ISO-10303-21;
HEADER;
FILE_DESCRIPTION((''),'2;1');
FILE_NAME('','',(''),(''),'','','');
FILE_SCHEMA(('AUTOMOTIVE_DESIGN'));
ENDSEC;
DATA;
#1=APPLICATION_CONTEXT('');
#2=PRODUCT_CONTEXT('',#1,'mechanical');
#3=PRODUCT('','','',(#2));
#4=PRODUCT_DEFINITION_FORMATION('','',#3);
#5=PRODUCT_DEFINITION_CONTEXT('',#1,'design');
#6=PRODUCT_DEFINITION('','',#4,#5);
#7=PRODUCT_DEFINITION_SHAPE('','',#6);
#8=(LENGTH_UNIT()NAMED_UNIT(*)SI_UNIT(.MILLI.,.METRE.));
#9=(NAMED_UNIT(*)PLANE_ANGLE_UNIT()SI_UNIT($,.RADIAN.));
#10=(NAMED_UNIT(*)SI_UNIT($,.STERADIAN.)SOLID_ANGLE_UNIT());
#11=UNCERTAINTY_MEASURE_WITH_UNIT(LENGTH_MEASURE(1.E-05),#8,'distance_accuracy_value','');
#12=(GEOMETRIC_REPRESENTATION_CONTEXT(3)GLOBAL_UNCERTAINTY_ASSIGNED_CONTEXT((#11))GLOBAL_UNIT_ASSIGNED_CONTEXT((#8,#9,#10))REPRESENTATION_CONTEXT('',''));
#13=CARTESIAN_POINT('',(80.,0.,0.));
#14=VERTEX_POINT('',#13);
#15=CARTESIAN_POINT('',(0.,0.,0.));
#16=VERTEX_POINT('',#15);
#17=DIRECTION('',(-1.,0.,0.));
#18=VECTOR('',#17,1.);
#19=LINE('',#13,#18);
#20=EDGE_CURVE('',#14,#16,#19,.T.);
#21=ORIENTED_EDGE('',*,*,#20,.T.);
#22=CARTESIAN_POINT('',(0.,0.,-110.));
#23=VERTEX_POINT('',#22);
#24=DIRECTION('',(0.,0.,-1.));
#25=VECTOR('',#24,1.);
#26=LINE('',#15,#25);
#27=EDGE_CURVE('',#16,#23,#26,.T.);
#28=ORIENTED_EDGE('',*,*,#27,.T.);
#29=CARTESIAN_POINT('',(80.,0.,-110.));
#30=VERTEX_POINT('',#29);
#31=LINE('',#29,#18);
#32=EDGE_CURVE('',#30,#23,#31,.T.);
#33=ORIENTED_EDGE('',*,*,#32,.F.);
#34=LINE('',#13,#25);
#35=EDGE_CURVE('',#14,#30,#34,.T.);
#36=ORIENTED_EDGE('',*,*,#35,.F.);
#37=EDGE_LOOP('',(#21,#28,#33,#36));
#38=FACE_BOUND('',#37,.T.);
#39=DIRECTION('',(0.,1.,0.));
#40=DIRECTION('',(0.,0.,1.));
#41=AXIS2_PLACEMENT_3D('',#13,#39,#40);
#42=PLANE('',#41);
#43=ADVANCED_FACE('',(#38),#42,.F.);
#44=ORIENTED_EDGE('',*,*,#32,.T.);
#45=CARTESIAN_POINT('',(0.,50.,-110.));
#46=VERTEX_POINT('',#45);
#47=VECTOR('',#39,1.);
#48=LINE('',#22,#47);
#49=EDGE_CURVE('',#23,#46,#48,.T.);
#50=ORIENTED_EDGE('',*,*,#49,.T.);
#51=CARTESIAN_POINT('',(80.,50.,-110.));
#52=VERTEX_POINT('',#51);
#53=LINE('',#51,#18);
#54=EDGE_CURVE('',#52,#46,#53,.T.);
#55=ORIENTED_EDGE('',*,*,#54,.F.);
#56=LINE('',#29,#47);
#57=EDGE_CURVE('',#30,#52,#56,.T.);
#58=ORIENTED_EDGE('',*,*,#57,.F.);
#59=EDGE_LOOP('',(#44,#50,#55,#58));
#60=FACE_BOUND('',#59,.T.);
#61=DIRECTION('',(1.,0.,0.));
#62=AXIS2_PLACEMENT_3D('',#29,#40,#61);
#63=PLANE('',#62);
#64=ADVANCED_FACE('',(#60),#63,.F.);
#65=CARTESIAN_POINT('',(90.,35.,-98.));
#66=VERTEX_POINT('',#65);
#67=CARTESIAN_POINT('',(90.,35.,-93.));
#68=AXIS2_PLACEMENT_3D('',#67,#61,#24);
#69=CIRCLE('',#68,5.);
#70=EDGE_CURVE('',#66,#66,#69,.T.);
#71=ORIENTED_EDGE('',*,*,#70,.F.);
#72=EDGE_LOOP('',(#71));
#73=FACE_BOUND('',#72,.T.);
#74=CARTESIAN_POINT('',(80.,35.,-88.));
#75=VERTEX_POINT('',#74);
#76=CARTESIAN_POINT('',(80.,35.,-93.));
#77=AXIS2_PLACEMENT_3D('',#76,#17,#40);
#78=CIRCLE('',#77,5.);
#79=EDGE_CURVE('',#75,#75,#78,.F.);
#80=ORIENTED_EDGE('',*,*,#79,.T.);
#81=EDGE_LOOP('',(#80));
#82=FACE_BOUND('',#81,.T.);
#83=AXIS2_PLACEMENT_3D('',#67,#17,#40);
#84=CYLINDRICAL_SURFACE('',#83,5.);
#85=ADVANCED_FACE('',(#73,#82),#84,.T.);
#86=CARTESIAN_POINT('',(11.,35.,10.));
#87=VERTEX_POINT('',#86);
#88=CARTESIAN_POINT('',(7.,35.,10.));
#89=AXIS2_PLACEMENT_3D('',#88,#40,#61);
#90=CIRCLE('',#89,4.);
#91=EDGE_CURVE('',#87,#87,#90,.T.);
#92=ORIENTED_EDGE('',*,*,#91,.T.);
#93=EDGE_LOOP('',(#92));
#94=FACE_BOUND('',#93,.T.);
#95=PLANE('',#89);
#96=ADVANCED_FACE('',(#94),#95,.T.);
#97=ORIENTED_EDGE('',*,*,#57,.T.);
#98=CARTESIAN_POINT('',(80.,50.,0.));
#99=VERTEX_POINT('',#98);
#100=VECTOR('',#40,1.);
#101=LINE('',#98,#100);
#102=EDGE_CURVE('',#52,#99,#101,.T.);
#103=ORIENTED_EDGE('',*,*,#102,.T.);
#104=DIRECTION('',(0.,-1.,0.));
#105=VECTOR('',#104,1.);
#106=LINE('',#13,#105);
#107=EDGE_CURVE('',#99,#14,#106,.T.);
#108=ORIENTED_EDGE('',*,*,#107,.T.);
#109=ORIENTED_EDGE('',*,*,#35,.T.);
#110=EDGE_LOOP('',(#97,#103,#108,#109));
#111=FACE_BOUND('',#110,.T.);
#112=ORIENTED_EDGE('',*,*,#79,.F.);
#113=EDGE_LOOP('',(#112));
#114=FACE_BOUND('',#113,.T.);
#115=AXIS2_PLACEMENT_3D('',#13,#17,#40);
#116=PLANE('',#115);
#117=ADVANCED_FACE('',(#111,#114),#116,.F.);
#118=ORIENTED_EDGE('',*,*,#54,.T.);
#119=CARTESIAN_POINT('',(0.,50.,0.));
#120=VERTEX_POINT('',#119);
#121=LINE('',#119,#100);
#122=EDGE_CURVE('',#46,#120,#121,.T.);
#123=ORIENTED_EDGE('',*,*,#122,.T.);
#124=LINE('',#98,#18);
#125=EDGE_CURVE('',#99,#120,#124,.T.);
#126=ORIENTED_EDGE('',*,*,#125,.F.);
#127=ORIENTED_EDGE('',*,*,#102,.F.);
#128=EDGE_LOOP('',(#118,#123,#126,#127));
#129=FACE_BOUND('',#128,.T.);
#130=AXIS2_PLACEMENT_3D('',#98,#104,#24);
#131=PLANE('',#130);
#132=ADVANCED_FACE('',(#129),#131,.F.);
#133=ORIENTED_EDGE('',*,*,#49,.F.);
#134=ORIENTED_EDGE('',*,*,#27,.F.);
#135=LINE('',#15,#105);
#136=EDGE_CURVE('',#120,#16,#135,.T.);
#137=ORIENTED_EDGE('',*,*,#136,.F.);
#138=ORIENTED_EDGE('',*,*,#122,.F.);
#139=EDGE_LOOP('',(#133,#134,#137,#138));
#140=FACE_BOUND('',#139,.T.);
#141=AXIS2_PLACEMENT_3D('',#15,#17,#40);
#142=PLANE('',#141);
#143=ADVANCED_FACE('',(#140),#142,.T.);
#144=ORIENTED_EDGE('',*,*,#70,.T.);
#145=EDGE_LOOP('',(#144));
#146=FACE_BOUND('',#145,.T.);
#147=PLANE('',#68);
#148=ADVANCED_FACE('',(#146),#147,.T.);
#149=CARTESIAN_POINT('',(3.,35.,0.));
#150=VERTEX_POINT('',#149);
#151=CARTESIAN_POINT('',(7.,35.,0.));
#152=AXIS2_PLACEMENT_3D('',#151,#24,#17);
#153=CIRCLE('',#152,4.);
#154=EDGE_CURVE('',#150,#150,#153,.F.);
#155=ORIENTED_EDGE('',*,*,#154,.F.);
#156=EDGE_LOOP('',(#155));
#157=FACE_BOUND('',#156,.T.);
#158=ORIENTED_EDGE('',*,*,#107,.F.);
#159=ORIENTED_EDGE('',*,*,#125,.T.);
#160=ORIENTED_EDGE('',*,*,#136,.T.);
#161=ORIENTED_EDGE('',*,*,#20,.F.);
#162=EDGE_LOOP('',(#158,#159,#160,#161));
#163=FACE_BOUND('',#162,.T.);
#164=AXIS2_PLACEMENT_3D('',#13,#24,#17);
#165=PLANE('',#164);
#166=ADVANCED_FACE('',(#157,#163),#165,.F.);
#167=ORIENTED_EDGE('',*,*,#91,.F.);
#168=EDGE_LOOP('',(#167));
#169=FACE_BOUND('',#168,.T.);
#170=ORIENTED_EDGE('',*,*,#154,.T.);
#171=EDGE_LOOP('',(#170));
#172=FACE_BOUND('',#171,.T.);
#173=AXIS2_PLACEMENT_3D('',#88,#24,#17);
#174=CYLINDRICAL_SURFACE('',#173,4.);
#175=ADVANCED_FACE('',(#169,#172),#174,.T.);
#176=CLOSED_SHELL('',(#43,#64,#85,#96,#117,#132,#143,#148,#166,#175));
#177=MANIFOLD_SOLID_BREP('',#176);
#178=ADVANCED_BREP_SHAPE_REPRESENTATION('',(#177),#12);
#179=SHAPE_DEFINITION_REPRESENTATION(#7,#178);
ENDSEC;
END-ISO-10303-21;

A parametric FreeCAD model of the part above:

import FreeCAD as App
import Part
import Sketcher
from FreeCAD import Vector
Q = App.Units.Quantity

doc = App.newDocument("Part")
body = doc.addObject("PartDesign::Body", "Body")

sketch1 = body.newObject("Sketcher::SketchObject", "Sketch")
sketch1.AttachmentSupport = (doc.getObject("YZ_Plane"), [""])
sketch1.MapMode = "FlatFace"
sketch1.addGeometry(Part.LineSegment(Vector(50, 0, 0), Vector(0, 0, 0)), False)
sketch1.addGeometry(Part.LineSegment(Vector(0, 0, 0), Vector(0, -110, 0)), False)
sketch1.addGeometry(Part.LineSegment(Vector(0, -110, 0), Vector(50, -110, 0)), False)
sketch1.addGeometry(Part.LineSegment(Vector(50, -110, 0), Vector(50, 0, 0)), False)
sketch1.addConstraint(Sketcher.Constraint("Coincident", 0, 2, 1, 1))
sketch1.addConstraint(Sketcher.Constraint("Coincident", 1, 2, 2, 1))
sketch1.addConstraint(Sketcher.Constraint("Coincident", 2, 2, 3, 1))
sketch1.addConstraint(Sketcher.Constraint("Coincident", 3, 2, 0, 1))
sketch1.addConstraint(Sketcher.Constraint("Horizontal", 0))
sketch1.addConstraint(Sketcher.Constraint("Vertical", 1))
sketch1.addConstraint(Sketcher.Constraint("Horizontal", 2))
sketch1.addConstraint(Sketcher.Constraint("Vertical", 3))
sketch1.addConstraint(Sketcher.Constraint("Coincident", 0, 2, -1, 1))
sketch1.addConstraint(Sketcher.Constraint("DistanceX", 0, 2, 0, 1, Q("50 mm")))
sketch1.addConstraint(Sketcher.Constraint("DistanceY", 1, 2, 1, 1, Q("110 mm")))
pad1 = body.newObject("PartDesign::Pad", "Pad")
pad1.Profile = sketch1
pad1.Length = 80

sketch2 = body.newObject("Sketcher::SketchObject", "Sketch001")
sketch2.AttachmentSupport = (doc.getObject("XY_Plane"), [""])
sketch2.MapMode = "FlatFace"
sketch2.addGeometry(Part.Circle(Vector(7, 35, 0), Vector(0, 0, 1), 4), False)
sketch2.addConstraint(Sketcher.Constraint("Diameter", 0, Q("8 mm")))
sketch2.addConstraint(Sketcher.Constraint("DistanceX", -1, 1, 0, 3, Q("7 mm")))
sketch2.addConstraint(Sketcher.Constraint("DistanceY", -1, 1, 0, 3, Q("35 mm")))
pad2 = body.newObject("PartDesign::Pad", "Pad001")
pad2.Profile = sketch2
pad2.Length = 10

sketch3 = body.newObject("Sketcher::SketchObject", "Sketch002")
sketch3.AttachmentSupport = (doc.getObject("YZ_Plane"), [""])
sketch3.MapMode = "FlatFace"
sketch3.AttachmentOffset = App.Placement(Vector(0, 0, 80), App.Rotation())
sketch3.addGeometry(Part.Circle(Vector(35, -93, 0), Vector(0, 0, 1), 5), False)
sketch3.addConstraint(Sketcher.Constraint("Diameter", 0, Q("10 mm")))
sketch3.addConstraint(Sketcher.Constraint("DistanceX", -1, 1, 0, 3, Q("35 mm")))
sketch3.addConstraint(Sketcher.Constraint("DistanceY", 0, 3, -1, 1, Q("93 mm")))
pad3 = body.newObject("PartDesign::Pad", "Pad002")
pad3.Profile = sketch3
pad3.Length = 10

doc.recompute()
